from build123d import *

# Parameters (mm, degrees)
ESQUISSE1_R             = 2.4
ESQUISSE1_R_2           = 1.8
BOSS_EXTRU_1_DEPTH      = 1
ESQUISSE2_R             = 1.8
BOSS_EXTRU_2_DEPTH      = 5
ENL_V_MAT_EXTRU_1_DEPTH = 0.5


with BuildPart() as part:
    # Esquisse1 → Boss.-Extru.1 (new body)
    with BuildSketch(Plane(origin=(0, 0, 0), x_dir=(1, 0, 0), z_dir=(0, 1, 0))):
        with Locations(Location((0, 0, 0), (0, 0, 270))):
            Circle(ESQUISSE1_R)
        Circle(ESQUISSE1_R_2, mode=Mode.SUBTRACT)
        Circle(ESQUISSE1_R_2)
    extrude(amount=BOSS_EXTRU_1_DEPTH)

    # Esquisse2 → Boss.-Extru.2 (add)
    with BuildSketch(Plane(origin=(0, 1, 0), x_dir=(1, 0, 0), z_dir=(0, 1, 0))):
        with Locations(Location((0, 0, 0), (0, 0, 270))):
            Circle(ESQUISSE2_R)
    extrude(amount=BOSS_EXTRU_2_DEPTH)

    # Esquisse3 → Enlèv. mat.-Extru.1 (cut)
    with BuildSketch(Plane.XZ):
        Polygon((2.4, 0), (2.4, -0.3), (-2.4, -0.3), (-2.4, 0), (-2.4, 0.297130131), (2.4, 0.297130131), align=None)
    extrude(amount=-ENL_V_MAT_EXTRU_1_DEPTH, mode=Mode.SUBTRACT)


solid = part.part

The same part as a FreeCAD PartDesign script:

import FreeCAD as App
import Part
import Sketcher
from FreeCAD import Vector
Q = App.Units.Quantity

doc = App.newDocument("Part")
body = doc.addObject("PartDesign::Body", "Body")

# Sketch on XZ plane
sketch1 = body.newObject("Sketcher::SketchObject", "Sketch")
sketch1.AttachmentSupport = (doc.getObject("XZ_Plane"), [""])
sketch1.MapMode = "FlatFace"
sketch1.addGeometry(Part.Circle(Vector(0, 0, 0), Vector(0, 0, 1), 2.4), False)
sketch1.addConstraint([
    Sketcher.Constraint("Coincident", 0, 3, -1, 1),
    Sketcher.Constraint("Diameter", 0, Q("4.8 mm")),
])
pad1 = body.newObject("PartDesign::Pad", "Pad")
pad1.Profile = sketch1
pad1.Length = 1
pad1.Reversed = True

# Sketch on XZ plane
sketch2 = body.newObject("Sketcher::SketchObject", "Sketch001")
sketch2.AttachmentSupport = (doc.getObject("XZ_Plane"), [""])
sketch2.MapMode = "FlatFace"
sketch2.AttachmentOffset = App.Placement(Vector(0, 0, -1), App.Rotation())
sketch2.addGeometry(Part.Circle(Vector(0, 0, 0), Vector(0, 0, 1), 1.8), False)
sketch2.addConstraint([
    Sketcher.Constraint("Coincident", 0, 3, -1, 1),
    Sketcher.Constraint("Diameter", 0, Q("3.6 mm")),
])
pad2 = body.newObject("PartDesign::Pad", "Pad001")
pad2.Profile = sketch2
pad2.Length = 5
pad2.Reversed = True

# Sketch on XZ plane
sketch3 = body.newObject("Sketcher::SketchObject", "Sketch002")
sketch3.AttachmentSupport = (doc.getObject("XZ_Plane"), [""])
sketch3.MapMode = "FlatFace"
sketch3.addGeometry([
    Part.LineSegment(Vector(2.4, -0.3, 0), Vector(2.4, 0.3, 0)),
    Part.LineSegment(Vector(2.4, 0.3, 0), Vector(-2.4, 0.3, 0)),
    Part.LineSegment(Vector(-2.4, 0.3, 0), Vector(-2.4, -0.3, 0)),
    Part.LineSegment(Vector(-2.4, -0.3, 0), Vector(2.4, -0.3, 0)),
], False)
sketch3.addConstraint([
    Sketcher.Constraint("Coincident", 0, 2, 1, 1),
    Sketcher.Constraint("Coincident", 1, 2, 2, 1),
    Sketcher.Constraint("Coincident", 2, 2, 3, 1),
    Sketcher.Constraint("Coincident", 3, 2, 0, 1),
    Sketcher.Constraint("Vertical", 0),
    Sketcher.Constraint("Horizontal", 1),
    Sketcher.Constraint("Vertical", 2),
    Sketcher.Constraint("Horizontal", 3),
    Sketcher.Constraint("DistanceX", 1, 2, 1, 1, Q("4.8 mm")),
    Sketcher.Constraint("DistanceX", -1, 1, 0, 2, Q("2.4 mm")),
    Sketcher.Constraint("DistanceY", 2, 2, -1, 1, Q("0.3 mm")),
    Sketcher.Constraint("DistanceY", 0, 1, 0, 2, Q("0.59713 mm")),
])
pocket1 = body.newObject("PartDesign::Pocket", "Pocket")
pocket1.Profile = sketch3
pocket1.Length = 0.5

doc.recompute()
